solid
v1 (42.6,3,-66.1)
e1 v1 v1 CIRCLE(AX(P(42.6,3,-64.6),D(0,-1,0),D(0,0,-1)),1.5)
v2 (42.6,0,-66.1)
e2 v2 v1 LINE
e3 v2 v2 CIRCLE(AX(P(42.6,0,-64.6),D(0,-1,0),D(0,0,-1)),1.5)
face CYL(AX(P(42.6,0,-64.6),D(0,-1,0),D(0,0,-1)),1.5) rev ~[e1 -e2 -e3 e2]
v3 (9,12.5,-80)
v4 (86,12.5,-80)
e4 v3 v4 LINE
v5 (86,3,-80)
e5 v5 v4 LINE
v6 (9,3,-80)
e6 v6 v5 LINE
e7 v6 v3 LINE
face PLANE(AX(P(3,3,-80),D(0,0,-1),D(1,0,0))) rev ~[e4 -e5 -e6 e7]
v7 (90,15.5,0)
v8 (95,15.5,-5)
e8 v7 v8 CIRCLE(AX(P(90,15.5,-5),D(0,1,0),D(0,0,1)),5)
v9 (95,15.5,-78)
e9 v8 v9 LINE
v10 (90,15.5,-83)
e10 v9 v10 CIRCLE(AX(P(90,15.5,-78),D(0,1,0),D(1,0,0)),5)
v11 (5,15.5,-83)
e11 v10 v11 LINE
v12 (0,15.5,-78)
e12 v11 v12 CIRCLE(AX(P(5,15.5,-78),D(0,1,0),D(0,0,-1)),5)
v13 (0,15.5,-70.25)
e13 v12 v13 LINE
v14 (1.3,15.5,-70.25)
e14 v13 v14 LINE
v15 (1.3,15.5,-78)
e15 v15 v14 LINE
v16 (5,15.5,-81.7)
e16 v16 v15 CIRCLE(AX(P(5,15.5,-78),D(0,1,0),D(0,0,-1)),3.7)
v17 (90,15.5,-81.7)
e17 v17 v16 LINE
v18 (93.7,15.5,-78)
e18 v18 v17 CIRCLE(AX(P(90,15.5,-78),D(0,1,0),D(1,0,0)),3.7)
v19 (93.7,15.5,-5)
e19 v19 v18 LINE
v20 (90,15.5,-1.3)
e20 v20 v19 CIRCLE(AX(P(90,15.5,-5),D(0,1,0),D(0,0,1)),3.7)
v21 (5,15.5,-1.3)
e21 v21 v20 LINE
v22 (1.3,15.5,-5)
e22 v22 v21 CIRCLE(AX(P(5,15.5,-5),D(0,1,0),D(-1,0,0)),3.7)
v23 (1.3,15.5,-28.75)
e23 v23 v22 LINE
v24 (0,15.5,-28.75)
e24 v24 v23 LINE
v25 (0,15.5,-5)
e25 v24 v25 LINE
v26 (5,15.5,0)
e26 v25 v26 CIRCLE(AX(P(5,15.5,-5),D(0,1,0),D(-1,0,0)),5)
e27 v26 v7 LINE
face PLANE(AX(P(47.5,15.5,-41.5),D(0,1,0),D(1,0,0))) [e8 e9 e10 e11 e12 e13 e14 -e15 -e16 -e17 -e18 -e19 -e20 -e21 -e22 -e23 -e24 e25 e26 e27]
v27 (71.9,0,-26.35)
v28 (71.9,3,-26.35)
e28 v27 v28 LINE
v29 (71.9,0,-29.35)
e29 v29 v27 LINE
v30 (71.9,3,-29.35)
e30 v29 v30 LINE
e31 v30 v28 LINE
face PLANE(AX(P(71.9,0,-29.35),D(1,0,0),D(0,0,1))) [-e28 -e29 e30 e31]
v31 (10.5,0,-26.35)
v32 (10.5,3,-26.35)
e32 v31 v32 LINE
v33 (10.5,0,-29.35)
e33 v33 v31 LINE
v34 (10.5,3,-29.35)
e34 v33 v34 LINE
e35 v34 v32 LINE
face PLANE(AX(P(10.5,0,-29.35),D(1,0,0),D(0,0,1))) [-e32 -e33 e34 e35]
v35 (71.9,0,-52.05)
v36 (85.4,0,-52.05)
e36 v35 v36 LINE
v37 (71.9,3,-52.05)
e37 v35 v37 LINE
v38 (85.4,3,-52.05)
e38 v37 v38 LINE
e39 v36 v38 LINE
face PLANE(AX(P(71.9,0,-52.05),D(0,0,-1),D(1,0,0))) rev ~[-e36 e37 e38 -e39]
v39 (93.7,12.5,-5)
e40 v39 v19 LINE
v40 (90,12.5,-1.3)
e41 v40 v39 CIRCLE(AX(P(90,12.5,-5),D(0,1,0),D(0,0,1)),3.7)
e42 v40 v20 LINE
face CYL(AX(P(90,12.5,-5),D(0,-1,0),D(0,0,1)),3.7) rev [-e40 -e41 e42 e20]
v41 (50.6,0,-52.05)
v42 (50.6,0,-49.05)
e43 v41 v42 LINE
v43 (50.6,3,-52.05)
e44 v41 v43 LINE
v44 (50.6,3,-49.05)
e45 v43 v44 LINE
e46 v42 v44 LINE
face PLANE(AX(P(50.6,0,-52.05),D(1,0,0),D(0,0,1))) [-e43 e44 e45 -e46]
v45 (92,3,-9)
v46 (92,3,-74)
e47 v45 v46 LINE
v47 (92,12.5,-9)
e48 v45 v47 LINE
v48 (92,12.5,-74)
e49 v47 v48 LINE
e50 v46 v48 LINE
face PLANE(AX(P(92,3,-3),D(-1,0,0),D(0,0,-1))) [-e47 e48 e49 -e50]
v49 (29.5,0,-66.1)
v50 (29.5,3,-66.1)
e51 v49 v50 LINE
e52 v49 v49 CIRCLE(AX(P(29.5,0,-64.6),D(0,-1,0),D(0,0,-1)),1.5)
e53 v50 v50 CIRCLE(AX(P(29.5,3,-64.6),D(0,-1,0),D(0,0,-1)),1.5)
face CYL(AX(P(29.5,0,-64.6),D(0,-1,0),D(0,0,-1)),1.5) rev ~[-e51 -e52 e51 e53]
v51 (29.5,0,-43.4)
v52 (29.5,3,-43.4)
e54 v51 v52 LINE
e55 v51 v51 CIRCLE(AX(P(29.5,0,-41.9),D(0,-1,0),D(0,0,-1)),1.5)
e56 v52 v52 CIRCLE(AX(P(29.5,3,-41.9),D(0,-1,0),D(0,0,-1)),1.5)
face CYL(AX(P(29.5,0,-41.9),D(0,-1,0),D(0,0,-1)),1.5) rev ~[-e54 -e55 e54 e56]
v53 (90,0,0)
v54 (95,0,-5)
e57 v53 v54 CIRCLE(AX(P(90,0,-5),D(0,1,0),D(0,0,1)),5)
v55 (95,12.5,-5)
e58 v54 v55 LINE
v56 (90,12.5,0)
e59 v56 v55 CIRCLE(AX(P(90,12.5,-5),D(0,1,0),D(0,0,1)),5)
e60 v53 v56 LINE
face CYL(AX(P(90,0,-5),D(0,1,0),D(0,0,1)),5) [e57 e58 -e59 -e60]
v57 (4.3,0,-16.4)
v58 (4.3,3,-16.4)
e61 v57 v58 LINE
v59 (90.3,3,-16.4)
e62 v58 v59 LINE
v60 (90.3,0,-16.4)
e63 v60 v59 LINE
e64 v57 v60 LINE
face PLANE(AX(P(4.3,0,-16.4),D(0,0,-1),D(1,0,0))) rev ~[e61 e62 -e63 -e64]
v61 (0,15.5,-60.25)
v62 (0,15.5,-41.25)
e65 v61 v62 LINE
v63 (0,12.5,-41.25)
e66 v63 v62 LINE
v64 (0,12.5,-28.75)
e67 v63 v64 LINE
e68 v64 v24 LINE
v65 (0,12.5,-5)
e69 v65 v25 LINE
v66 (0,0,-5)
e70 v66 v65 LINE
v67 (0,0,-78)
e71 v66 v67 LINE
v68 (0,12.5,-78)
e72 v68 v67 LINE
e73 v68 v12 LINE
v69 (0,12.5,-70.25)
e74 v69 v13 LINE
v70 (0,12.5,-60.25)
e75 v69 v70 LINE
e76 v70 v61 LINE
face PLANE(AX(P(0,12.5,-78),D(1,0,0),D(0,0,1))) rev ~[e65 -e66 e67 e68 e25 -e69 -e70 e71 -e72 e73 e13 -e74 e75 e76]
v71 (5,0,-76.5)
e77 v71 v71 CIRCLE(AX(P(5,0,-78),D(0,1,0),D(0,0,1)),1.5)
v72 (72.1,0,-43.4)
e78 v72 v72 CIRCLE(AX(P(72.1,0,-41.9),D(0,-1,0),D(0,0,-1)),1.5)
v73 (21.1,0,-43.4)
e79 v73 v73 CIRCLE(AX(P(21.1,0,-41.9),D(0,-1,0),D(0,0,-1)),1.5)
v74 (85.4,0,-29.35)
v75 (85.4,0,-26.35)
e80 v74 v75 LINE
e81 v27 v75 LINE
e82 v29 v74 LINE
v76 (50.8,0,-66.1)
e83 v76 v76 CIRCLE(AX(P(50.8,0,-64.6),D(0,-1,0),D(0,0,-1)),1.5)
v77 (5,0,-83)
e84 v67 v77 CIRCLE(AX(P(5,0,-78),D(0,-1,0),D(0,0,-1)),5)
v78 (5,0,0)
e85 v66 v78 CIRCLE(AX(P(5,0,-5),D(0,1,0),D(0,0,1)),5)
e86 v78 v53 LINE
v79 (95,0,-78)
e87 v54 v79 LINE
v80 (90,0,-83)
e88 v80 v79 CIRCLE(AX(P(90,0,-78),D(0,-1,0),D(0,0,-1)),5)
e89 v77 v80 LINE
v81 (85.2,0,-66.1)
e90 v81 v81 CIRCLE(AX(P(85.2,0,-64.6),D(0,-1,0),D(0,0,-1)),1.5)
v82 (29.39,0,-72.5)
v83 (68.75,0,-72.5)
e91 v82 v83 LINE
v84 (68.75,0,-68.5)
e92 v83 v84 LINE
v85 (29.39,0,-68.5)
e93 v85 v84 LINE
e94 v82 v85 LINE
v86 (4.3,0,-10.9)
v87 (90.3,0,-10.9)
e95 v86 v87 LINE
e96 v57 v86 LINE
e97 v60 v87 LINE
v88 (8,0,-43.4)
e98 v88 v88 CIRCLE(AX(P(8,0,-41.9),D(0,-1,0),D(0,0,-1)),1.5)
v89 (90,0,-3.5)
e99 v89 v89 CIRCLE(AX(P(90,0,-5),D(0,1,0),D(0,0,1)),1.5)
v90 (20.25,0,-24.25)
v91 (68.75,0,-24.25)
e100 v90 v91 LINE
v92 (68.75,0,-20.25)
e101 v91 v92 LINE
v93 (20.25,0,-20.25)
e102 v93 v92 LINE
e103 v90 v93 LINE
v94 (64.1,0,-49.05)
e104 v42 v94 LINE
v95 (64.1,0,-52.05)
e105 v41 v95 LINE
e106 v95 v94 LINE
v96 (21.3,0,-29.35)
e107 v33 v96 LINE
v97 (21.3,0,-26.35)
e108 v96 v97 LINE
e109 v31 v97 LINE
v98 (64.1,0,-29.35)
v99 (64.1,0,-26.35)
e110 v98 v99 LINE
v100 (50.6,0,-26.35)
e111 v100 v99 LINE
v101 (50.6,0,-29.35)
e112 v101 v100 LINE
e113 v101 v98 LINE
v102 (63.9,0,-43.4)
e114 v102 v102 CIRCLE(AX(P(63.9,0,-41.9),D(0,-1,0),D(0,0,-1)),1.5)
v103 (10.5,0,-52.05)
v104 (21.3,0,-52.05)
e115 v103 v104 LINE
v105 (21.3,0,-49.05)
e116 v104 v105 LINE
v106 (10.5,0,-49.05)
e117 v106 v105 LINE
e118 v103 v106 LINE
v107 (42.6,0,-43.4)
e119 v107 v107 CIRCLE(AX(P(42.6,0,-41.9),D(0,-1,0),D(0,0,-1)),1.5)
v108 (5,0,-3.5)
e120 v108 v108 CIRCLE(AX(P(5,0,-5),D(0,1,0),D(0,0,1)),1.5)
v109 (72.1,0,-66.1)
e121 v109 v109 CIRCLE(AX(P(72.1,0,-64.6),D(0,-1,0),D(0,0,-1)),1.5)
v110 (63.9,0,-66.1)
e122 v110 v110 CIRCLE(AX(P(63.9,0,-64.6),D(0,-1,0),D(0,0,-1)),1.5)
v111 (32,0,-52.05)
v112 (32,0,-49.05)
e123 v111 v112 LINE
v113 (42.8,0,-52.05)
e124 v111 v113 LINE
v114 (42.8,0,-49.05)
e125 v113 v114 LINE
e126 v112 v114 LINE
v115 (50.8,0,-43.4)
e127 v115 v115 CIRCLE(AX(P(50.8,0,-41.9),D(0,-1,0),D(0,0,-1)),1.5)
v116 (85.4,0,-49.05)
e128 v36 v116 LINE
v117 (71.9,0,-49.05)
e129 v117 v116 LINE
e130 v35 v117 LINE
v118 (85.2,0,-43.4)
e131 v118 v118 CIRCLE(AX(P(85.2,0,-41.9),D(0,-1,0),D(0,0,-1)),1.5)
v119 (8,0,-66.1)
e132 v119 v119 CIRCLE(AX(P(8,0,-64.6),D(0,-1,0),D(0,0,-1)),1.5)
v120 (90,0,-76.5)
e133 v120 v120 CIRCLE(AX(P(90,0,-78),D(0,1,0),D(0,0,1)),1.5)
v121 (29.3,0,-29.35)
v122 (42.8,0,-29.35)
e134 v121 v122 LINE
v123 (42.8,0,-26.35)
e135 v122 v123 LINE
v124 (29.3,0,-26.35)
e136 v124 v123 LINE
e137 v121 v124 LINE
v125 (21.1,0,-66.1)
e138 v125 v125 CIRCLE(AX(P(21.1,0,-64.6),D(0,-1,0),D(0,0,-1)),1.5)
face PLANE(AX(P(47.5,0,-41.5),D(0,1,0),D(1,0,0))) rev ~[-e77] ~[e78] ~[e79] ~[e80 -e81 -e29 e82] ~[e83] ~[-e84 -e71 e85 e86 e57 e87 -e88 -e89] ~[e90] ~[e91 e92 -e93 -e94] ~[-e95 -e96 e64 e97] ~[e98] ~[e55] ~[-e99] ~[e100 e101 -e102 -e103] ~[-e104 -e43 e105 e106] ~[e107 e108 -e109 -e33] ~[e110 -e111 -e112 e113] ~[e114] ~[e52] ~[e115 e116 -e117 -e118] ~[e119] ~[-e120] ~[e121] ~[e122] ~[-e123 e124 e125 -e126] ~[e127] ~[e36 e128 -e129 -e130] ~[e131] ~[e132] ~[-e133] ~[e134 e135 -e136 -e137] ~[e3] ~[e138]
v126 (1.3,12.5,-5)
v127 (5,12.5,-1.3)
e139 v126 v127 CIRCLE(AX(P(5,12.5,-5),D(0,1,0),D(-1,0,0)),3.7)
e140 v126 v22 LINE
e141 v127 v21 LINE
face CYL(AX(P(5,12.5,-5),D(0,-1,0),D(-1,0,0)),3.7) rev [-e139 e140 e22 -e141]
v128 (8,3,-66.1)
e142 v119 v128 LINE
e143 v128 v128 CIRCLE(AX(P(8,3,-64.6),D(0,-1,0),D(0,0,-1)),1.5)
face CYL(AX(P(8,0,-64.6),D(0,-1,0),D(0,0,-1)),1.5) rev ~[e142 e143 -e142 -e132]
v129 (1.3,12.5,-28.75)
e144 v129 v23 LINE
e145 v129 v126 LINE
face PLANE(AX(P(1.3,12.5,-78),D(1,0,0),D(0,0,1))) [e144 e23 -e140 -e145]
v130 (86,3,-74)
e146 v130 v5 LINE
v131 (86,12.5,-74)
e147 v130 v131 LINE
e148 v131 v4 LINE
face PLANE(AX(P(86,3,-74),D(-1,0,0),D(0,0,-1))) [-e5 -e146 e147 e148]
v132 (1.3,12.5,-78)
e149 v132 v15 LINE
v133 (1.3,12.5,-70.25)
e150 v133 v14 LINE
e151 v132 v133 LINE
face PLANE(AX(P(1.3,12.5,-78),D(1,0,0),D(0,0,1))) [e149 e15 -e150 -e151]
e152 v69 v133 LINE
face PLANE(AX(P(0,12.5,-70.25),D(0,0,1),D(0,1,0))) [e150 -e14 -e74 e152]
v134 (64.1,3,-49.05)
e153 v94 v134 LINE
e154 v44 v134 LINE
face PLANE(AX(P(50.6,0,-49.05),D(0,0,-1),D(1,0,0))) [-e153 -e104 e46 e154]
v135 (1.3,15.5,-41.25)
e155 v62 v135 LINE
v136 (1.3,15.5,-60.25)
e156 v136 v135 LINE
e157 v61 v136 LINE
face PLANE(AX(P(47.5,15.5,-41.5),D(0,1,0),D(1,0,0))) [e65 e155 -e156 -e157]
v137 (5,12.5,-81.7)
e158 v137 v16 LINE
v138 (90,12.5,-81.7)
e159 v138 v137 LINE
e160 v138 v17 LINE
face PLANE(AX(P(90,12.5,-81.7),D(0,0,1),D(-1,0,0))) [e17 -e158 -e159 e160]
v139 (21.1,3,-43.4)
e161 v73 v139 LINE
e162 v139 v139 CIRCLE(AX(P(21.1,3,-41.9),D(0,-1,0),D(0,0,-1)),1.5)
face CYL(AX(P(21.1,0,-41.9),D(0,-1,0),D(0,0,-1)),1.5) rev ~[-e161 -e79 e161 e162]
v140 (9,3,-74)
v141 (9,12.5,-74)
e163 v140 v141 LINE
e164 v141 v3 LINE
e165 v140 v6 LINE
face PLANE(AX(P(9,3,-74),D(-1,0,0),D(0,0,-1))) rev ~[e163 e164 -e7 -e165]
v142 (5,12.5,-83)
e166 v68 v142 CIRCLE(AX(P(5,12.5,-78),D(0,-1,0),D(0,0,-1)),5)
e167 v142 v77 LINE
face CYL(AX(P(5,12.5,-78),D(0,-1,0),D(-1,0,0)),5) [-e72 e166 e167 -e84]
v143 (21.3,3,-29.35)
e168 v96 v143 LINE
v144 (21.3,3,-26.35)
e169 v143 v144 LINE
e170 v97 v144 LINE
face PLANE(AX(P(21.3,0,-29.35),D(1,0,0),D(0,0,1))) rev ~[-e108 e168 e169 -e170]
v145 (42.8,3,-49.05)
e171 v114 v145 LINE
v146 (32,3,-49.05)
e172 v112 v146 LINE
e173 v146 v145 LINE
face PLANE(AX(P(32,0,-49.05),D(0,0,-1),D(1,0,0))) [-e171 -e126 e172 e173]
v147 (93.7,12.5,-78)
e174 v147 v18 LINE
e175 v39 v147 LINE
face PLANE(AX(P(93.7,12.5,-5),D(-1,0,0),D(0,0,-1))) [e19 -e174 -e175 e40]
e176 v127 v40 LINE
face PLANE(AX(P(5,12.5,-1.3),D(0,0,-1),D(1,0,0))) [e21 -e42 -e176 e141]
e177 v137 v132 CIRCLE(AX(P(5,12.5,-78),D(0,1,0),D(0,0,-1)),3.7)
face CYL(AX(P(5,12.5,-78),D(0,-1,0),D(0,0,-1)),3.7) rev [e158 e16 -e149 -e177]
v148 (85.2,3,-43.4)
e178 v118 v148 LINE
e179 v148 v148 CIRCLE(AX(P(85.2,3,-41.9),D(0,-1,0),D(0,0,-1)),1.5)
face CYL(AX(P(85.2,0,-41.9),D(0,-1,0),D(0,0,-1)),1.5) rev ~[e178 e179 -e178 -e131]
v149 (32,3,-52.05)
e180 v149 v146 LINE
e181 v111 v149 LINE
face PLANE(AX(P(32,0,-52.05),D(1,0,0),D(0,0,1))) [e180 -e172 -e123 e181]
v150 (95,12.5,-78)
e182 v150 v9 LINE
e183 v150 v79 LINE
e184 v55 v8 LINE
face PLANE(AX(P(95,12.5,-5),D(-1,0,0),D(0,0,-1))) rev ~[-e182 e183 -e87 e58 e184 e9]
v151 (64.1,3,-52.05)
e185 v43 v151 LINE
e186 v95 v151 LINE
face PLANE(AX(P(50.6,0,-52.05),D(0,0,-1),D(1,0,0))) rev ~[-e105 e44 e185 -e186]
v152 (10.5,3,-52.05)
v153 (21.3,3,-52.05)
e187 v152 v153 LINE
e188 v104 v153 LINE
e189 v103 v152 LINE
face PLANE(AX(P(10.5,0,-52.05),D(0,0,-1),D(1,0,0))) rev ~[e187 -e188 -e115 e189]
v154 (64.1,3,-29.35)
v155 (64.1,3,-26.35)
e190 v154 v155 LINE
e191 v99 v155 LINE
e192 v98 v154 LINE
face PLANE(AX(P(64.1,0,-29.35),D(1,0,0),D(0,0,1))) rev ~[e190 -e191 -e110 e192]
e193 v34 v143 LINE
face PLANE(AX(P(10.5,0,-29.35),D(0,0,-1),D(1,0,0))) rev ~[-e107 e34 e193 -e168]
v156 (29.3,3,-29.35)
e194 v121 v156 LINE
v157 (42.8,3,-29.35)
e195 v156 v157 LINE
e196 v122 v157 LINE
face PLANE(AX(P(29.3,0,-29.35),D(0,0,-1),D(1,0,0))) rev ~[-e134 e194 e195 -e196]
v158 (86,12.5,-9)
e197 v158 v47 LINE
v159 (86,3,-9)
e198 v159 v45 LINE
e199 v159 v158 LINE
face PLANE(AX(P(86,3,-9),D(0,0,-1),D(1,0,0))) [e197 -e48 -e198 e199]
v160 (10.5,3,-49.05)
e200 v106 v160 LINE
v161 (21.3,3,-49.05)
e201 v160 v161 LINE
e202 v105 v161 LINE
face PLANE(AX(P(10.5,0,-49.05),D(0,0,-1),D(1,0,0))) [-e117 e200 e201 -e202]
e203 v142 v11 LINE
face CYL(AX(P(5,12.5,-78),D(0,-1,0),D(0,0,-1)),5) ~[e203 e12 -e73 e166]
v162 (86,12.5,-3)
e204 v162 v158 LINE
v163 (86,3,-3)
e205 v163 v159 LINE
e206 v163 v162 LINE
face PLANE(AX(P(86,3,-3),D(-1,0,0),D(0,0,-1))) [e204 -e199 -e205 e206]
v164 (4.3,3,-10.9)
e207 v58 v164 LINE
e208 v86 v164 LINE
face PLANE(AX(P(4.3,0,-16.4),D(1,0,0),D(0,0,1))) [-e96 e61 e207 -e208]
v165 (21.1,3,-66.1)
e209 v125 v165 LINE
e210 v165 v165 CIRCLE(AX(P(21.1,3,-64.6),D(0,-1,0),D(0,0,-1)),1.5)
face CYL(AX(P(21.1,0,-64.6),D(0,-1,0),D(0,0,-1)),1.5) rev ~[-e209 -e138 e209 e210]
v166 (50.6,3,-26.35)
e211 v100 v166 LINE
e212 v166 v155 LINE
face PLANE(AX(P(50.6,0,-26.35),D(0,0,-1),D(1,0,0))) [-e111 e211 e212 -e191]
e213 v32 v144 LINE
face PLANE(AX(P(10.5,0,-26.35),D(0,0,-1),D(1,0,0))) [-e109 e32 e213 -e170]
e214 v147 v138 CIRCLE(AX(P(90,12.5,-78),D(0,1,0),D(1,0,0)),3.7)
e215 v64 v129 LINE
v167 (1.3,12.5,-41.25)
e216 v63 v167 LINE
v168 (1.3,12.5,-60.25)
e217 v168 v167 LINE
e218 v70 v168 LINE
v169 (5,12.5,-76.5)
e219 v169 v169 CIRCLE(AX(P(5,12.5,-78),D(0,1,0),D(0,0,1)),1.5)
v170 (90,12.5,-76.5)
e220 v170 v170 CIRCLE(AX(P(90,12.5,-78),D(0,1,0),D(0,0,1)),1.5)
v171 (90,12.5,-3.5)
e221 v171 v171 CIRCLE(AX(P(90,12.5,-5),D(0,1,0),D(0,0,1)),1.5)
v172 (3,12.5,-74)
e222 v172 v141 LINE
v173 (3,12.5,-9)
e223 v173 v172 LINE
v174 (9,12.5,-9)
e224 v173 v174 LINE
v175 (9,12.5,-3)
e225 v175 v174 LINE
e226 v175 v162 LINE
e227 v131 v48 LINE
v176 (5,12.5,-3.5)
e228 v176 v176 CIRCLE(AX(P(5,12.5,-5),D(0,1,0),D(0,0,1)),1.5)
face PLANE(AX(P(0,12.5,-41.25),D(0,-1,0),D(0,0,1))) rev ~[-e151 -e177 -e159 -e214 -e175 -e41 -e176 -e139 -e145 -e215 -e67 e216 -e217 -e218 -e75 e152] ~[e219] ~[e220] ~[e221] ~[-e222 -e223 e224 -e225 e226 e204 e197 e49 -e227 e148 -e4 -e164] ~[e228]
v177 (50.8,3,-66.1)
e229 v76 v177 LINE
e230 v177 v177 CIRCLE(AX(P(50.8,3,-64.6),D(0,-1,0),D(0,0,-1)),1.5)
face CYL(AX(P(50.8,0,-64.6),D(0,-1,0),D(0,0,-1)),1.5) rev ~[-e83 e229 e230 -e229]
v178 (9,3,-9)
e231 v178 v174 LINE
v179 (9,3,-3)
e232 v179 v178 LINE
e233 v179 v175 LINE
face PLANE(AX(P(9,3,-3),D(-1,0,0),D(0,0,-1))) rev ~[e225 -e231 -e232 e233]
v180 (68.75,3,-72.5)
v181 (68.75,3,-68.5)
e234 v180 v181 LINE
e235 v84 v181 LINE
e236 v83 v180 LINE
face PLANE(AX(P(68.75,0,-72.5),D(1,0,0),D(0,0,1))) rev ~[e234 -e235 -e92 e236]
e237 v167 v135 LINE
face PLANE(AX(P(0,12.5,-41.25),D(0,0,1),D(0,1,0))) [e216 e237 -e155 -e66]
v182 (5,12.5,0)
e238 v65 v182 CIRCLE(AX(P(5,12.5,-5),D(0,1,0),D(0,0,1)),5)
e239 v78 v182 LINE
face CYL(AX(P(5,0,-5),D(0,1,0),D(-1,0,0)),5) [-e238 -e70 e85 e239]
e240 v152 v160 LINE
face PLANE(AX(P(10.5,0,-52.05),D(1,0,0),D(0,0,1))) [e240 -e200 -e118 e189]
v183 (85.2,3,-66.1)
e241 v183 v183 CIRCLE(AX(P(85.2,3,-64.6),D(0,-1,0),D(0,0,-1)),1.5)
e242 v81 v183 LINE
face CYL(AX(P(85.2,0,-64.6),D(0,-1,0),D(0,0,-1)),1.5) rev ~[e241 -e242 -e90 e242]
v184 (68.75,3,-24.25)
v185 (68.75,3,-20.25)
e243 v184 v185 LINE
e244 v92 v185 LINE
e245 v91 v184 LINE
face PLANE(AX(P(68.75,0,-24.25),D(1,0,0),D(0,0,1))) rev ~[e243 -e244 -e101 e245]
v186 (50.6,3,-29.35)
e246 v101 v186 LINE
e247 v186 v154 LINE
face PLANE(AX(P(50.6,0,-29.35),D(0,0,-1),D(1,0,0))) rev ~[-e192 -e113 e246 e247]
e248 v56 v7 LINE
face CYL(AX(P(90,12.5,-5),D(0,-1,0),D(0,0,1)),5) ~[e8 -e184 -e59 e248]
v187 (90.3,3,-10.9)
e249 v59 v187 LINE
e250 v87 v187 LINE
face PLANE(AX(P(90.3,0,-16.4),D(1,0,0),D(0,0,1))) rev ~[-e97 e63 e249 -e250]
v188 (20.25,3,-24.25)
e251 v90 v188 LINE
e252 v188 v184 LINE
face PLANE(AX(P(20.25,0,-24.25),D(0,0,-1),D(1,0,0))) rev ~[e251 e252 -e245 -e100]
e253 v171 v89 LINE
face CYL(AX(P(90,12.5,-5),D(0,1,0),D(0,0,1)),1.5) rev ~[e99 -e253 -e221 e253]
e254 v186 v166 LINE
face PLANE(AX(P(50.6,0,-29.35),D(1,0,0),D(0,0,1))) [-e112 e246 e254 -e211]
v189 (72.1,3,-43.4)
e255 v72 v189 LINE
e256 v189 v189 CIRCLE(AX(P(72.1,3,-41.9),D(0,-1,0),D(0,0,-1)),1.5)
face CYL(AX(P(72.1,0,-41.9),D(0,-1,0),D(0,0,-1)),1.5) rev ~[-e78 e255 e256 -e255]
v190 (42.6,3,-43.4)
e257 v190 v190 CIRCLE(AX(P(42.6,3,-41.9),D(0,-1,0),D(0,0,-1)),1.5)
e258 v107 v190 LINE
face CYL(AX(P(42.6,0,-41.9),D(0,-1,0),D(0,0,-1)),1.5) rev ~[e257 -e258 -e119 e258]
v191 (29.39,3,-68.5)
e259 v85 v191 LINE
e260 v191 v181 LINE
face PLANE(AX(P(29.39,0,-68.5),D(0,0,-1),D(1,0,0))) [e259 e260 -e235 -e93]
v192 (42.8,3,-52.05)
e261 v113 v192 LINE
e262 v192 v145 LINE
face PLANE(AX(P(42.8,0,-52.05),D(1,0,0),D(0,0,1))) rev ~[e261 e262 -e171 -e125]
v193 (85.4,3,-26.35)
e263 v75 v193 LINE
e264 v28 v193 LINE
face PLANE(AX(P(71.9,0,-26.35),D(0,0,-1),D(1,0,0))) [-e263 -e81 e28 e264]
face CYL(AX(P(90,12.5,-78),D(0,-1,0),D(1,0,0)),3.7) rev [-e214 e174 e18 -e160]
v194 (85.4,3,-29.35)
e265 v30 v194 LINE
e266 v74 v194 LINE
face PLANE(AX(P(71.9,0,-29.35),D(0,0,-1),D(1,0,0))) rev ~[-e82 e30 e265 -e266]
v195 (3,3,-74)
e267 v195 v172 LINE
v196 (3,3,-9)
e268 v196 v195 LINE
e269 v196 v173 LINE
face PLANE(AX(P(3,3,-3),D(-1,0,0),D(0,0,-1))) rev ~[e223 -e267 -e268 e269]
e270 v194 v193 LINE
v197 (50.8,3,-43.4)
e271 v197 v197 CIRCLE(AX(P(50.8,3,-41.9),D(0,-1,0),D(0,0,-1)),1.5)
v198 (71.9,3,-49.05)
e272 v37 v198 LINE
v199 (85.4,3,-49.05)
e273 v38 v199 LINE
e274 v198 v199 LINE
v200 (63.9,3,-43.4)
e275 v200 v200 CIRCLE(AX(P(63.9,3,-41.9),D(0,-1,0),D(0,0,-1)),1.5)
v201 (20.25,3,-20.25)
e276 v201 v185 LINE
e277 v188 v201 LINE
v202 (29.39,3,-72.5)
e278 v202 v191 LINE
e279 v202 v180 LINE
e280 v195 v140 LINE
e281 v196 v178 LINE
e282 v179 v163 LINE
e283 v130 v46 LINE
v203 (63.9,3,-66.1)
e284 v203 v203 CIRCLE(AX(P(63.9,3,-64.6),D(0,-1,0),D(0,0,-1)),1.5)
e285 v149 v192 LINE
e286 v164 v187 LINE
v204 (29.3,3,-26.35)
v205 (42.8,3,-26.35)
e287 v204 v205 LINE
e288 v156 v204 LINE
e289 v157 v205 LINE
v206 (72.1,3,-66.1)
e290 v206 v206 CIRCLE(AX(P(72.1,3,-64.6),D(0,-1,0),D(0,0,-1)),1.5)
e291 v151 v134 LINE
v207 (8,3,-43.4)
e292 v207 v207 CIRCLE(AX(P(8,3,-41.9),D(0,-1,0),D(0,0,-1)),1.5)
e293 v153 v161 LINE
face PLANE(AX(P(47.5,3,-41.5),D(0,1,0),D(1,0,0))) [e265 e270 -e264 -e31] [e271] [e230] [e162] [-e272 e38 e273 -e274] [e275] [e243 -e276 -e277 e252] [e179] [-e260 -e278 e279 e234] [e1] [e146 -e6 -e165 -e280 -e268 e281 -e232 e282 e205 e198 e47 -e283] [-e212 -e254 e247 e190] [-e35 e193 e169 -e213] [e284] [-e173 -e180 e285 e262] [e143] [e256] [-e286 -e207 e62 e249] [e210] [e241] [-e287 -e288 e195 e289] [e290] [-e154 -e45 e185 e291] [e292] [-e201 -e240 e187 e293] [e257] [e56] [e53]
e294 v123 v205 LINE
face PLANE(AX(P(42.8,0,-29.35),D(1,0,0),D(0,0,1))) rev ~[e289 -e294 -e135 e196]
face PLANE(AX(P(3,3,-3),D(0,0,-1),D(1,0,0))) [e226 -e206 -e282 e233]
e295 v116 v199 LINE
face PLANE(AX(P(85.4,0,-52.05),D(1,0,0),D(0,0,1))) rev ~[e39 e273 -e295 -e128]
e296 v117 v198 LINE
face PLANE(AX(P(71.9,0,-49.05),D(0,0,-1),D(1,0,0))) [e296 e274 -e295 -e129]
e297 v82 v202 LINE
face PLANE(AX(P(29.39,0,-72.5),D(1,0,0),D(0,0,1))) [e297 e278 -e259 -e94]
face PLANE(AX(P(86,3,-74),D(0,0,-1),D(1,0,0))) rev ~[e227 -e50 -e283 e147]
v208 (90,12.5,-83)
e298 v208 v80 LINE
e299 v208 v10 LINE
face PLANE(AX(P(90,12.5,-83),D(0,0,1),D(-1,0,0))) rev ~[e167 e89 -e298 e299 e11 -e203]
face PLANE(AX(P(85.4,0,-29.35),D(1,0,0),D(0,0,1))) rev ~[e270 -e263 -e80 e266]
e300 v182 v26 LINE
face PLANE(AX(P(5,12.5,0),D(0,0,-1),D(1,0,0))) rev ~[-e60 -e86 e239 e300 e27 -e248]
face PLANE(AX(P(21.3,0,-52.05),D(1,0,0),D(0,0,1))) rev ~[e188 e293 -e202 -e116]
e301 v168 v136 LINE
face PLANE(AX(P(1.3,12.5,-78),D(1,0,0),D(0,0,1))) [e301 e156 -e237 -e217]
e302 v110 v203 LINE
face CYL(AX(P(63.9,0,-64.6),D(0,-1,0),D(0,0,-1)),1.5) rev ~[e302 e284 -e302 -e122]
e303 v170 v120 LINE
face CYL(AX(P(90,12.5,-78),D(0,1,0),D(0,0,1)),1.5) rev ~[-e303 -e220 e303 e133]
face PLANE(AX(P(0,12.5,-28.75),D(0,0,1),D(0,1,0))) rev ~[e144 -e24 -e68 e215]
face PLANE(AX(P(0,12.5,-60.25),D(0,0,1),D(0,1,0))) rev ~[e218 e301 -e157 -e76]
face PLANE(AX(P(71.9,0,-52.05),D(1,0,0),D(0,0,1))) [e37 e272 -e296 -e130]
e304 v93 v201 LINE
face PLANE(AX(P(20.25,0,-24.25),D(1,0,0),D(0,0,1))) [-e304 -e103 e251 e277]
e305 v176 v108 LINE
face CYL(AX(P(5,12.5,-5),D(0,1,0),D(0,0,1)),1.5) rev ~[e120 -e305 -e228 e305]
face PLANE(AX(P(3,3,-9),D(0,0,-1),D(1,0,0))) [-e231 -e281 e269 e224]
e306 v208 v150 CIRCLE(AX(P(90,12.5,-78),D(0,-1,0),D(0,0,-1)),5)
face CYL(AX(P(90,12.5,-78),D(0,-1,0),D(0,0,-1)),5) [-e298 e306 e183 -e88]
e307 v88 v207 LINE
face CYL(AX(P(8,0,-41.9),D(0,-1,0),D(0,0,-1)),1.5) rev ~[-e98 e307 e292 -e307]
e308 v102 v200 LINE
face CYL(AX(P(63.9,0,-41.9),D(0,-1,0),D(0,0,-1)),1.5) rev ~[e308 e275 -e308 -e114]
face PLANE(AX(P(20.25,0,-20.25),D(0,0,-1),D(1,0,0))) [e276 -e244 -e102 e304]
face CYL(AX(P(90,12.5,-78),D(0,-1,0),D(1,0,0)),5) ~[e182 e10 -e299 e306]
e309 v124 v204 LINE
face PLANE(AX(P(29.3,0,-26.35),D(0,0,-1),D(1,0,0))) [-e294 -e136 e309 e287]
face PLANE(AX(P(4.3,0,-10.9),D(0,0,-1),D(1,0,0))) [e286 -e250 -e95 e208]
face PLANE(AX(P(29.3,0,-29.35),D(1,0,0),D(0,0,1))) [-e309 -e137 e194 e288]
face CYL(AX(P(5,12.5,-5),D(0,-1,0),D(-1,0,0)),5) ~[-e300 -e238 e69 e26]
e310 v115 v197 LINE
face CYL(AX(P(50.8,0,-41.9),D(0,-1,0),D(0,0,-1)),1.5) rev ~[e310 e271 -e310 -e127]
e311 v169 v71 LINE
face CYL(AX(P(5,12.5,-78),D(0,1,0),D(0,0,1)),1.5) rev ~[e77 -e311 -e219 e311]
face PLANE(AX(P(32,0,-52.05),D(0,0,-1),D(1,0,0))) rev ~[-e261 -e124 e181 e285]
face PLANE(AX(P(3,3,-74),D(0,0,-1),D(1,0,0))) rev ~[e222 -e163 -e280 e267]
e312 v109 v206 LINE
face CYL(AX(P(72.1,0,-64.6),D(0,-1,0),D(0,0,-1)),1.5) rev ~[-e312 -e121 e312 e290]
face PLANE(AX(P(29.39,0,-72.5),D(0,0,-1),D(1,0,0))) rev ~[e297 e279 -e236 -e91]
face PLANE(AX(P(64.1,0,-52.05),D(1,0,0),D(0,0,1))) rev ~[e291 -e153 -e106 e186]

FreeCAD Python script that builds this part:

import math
import FreeCAD as App
import Part
import Sketcher

V = App.Vector
Q = App.Units.Quantity


def edges_at(feature, points):
    """Names of the edges that pass closest to the given points."""
    edges = feature.Shape.Edges
    near = lambda p: min(range(len(edges)), key=lambda i: edges[i].distToShape(Part.Vertex(*p))[0])
    return sorted({f"Edge{near(p) + 1}" for p in points})


def add_polygon(sketch, points):
    """Adds a closed chain of lines whose ends are joined by coincident constraints."""
    first, n = sketch.GeometryCount, len(points)
    for a, b in zip(points, points[1:] + points[:1]):
        sketch.addGeometry(Part.LineSegment(App.Vector(*a, 0), App.Vector(*b, 0)), False)
    for i in range(n):
        sketch.addConstraint(Sketcher.Constraint("Coincident", first + i, 2, first + (i + 1) % n, 1))

doc = App.newDocument("Part")
body = doc.addObject("PartDesign::Body", "Body")

# Sketch on XZ plane
sketch1 = body.newObject("Sketcher::SketchObject", "Sketch")
sketch1.AttachmentSupport = (doc.getObject("XZ_Plane"), [""])
sketch1.MapMode = "FlatFace"
add_polygon(sketch1, [(0, -83), (0, 0), (95, 0), (95, -83)])  # lines 0-3
sketch1.addConstraint(Sketcher.Constraint("Vertical", 0))
sketch1.addConstraint(Sketcher.Constraint("Horizontal", 1))
sketch1.addConstraint(Sketcher.Constraint("Vertical", 2))
sketch1.addConstraint(Sketcher.Constraint("Horizontal", 3))
sketch1.addConstraint(Sketcher.Constraint("Coincident", 0, 2, -1, 1))
sketch1.addConstraint(Sketcher.Constraint("DistanceX", 1, 1, 1, 2, Q("95 mm")))
sketch1.addConstraint(Sketcher.Constraint("DistanceY", 0, 1, 0, 2, Q("83 mm")))
pad1 = body.newObject("PartDesign::Pad", "Pad")
pad1.Profile = sketch1
pad1.Length = 3
pad1.Reversed = True

# Sketch on XZ plane
sketch2 = body.newObject("Sketcher::SketchObject", "Sketch001")
sketch2.AttachmentSupport = (doc.getObject("XZ_Plane"), [""])
sketch2.MapMode = "FlatFace"
sketch2.AttachmentOffset = App.Placement(V(0, 0, -3), App.Rotation())
add_polygon(sketch2, [(0, -83), (0, 0), (95, 0), (95, -83)])  # lines 0-3
add_polygon(sketch2, [(92, -3), (3, -3), (3, -80), (92, -80)])  # lines 4-7
sketch2.addConstraint(Sketcher.Constraint("Vertical", 0))
sketch2.addConstraint(Sketcher.Constraint("Horizontal", 1))
sketch2.addConstraint(Sketcher.Constraint("Vertical", 2))
sketch2.addConstraint(Sketcher.Constraint("Horizontal", 3))
sketch2.addConstraint(Sketcher.Constraint("Horizontal", 4))
sketch2.addConstraint(Sketcher.Constraint("Vertical", 5))
sketch2.addConstraint(Sketcher.Constraint("Horizontal", 6))
sketch2.addConstraint(Sketcher.Constraint("Vertical", 7))
sketch2.addConstraint(Sketcher.Constraint("Coincident", 0, 2, -1, 1))
sketch2.addConstraint(Sketcher.Constraint("DistanceX", 1, 1, 1, 2, Q("95 mm")))
sketch2.addConstraint(Sketcher.Constraint("DistanceX", 4, 2, 4, 1, Q("89 mm")))
sketch2.addConstraint(Sketcher.Constraint("DistanceY", 0, 1, 0, 2, Q("83 mm")))
sketch2.addConstraint(Sketcher.Constraint("DistanceY", 5, 2, 5, 1, Q("77 mm")))
sketch2.addConstraint(Sketcher.Constraint("DistanceX", -1, 1, 4, 2, Q("3 mm")))
sketch2.addConstraint(Sketcher.Constraint("DistanceY", 4, 2, -1, 1, Q("3 mm")))
pad2 = body.newObject("PartDesign::Pad", "Pad001")
pad2.Profile = sketch2
pad2.Length = 9.5
pad2.Reversed = True

# Sketch on XZ plane
sketch3 = body.newObject("Sketcher::SketchObject", "Sketch002")
sketch3.AttachmentSupport = (doc.getObject("XZ_Plane"), [""])
sketch3.MapMode = "FlatFace"
sketch3.AttachmentOffset = App.Placement(V(0, 0, -3), App.Rotation())
add_polygon(sketch3, [(3, -80), (3, -74), (9, -74), (9, -80)])  # lines 0-3
add_polygon(sketch3, [(3, -9), (3, -3), (9, -3), (9, -9)])  # lines 4-7
add_polygon(sketch3, [(86, -9), (86, -3), (92, -3), (92, -9)])  # lines 8-11
add_polygon(sketch3, [(86, -80), (86, -74), (92, -74), (92, -80)])  # lines 12-15
sketch3.addConstraint(Sketcher.Constraint("Vertical", 0))
sketch3.addConstraint(Sketcher.Constraint("Horizontal", 1))
sketch3.addConstraint(Sketcher.Constraint("Vertical", 2))
sketch3.addConstraint(Sketcher.Constraint("Horizontal", 3))
sketch3.addConstraint(Sketcher.Constraint("Vertical", 4))
sketch3.addConstraint(Sketcher.Constraint("Horizontal", 5))
sketch3.addConstraint(Sketcher.Constraint("Vertical", 6))
sketch3.addConstraint(Sketcher.Constraint("Horizontal", 7))
sketch3.addConstraint(Sketcher.Constraint("Vertical", 8))
sketch3.addConstraint(Sketcher.Constraint("Horizontal", 9))
sketch3.addConstraint(Sketcher.Constraint("Vertical", 10))
sketch3.addConstraint(Sketcher.Constraint("Horizontal", 11))
sketch3.addConstraint(Sketcher.Constraint("Vertical", 12))
sketch3.addConstraint(Sketcher.Constraint("Horizontal", 13))
sketch3.addConstraint(Sketcher.Constraint("Vertical", 14))
sketch3.addConstraint(Sketcher.Constraint("Horizontal", 15))
sketch3.addConstraint(Sketcher.Constraint("Horizontal", 5, 2, 8, 2))
sketch3.addConstraint(Sketcher.Constraint("Horizontal", 7, 2, 10, 2))
sketch3.addConstraint(Sketcher.Constraint("Horizontal", 1, 2, 12, 2))
sketch3.addConstraint(Sketcher.Constraint("Horizontal", 3, 2, 14, 2))
sketch3.addConstraint(Sketcher.Constraint("Vertical", 3, 2, 4, 2))
sketch3.addConstraint(Sketcher.Constraint("Vertical", 2, 2, 5, 2))
sketch3.addConstraint(Sketcher.Constraint("Vertical", 11, 2, 12, 2))
sketch3.addConstraint(Sketcher.Constraint("Vertical", 10, 2, 13, 2))
sketch3.addConstraint(Sketcher.Constraint("Equal", 7, 9))
sketch3.addConstraint(Sketcher.Constraint("Equal", 15, 0))
sketch3.addConstraint(Sketcher.Constraint("Equal", 2, 4))
sketch3.addConstraint(Sketcher.Constraint("DistanceX", 1, 1, 1, 2, Q("6 mm")))
sketch3.addConstraint(Sketcher.Constraint("DistanceX", -1, 1, 0, 2, Q("3 mm")))
sketch3.addConstraint(Sketcher.Constraint("DistanceY", 0, 2, -1, 1, Q("74 mm")))
sketch3.addConstraint(Sketcher.Constraint("DistanceY", 4, 2, -1, 1, Q("3 mm")))
sketch3.addConstraint(Sketcher.Constraint("DistanceX", -1, 1, 8, 2, Q("86 mm")))
pad3 = body.newObject("PartDesign::Pad", "Pad002")
pad3.Profile = sketch3
pad3.Length = 9.5
pad3.Reversed = True
doc.recompute()

fillet = body.newObject("PartDesign::Fillet", "Fillet")
fillet.Base = (pad3, edges_at(pad3, [
    (0, 6.25, -83),
    (95, 6.25, -83),
    (95, 6.25, 0),
    (0, 6.25, 0),
]))
fillet.Radius = 5

# Sketch on XZ plane
sketch4 = body.newObject("Sketcher::SketchObject", "Sketch003")
sketch4.AttachmentSupport = (doc.getObject("XZ_Plane"), [""])
sketch4.MapMode = "FlatFace"
sketch4.AttachmentOffset = App.Placement(V(0, 0, -12.5), App.Rotation())
sketch4.addGeometry(Part.Circle(V(5, -78, 0), V(0, 0, 1), 1.5), False)
sketch4.addGeometry(Part.Circle(V(90, -78, 0), V(0, 0, 1), 1.5), False)
sketch4.addGeometry(Part.Circle(V(90, -5, 0), V(0, 0, 1), 1.5), False)
sketch4.addGeometry(Part.Circle(V(5, -5, 0), V(0, 0, 1), 1.5), False)
sketch4.addConstraint(Sketcher.Constraint("Equal", 0, 1))
sketch4.addConstraint(Sketcher.Constraint("Equal", 1, 2))
sketch4.addConstraint(Sketcher.Constraint("Equal", 2, 3))
sketch4.addConstraint(Sketcher.Constraint("Horizontal", 0, 3, 1, 3))
sketch4.addConstraint(Sketcher.Constraint("Horizontal", 2, 3, 3, 3))
sketch4.addConstraint(Sketcher.Constraint("Vertical", 1, 3, 2, 3))
sketch4.addConstraint(Sketcher.Constraint("Vertical", 0, 3, 3, 3))
sketch4.addConstraint(Sketcher.Constraint("Diameter", 0, Q("3 mm")))
sketch4.addConstraint(Sketcher.Constraint("DistanceX", -1, 1, 0, 3, Q("5 mm")))
sketch4.addConstraint(Sketcher.Constraint("DistanceY", 0, 3, -1, 1, Q("78 mm")))
sketch4.addConstraint(Sketcher.Constraint("DistanceX", -1, 1, 1, 3, Q("90 mm")))
sketch4.addConstraint(Sketcher.Constraint("DistanceY", 2, 3, -1, 1, Q("5 mm")))
pocket1 = body.newObject("PartDesign::Pocket", "Pocket")
pocket1.Profile = sketch4
pocket1.Length = 12.5
pocket1.Reversed = True

# Sketch on XZ plane
sketch5 = body.newObject("Sketcher::SketchObject", "Sketch004")
sketch5.AttachmentSupport = (doc.getObject("XZ_Plane"), [""])
sketch5.MapMode = "FlatFace"
sketch5.AttachmentOffset = App.Placement(V(0, 0, -12.5), App.Rotation())
sketch5.addGeometry(Part.LineSegment(V(5, 0, 0), V(90, 0, 0)), False)
sketch5.addGeometry(Part.ArcOfCircle(Part.Circle(V(90, -5, 0), V(0, 0, 1), 5), math.radians(0), math.radians(90)), False)
sketch5.addGeometry(Part.LineSegment(V(95, -5, 0), V(95, -78, 0)), False)
sketch5.addGeometry(Part.ArcOfCircle(Part.Circle(V(90, -78, 0), V(0, 0, 1), 5), math.radians(-90), math.radians(0)), False)
sketch5.addGeometry(Part.LineSegment(V(90, -83, 0), V(5, -83, 0)), False)
sketch5.addGeometry(Part.ArcOfCircle(Part.Circle(V(5, -78, 0), V(0, 0, 1), 5), math.radians(180), math.radians(270)), False)
sketch5.addGeometry(Part.LineSegment(V(0, -78, 0), V(0, -5, 0)), False)
sketch5.addGeometry(Part.ArcOfCircle(Part.Circle(V(5, -5, 0), V(0, 0, 1), 5), math.radians(90), math.radians(180)), False)
sketch5.addGeometry(Part.LineSegment(V(90, -1.3, 0), V(5, -1.3, 0)), False)
sketch5.addGeometry(Part.ArcOfCircle(Part.Circle(V(5, -5, 0), V(0, 0, 1), 3.7), math.radians(90), math.radians(180)), False)
sketch5.addGeometry(Part.LineSegment(V(1.3, -5, 0), V(1.3, -78, 0)), False)
sketch5.addGeometry(Part.ArcOfCircle(Part.Circle(V(5, -78, 0), V(0, 0, 1), 3.7), math.radians(-180), math.radians(-90)), False)
sketch5.addGeometry(Part.LineSegment(V(5, -81.7, 0), V(90, -81.7, 0)), False)
sketch5.addGeometry(Part.ArcOfCircle(Part.Circle(V(90, -78, 0), V(0, 0, 1), 3.7), math.radians(-90), math.radians(0)), False)
sketch5.addGeometry(Part.LineSegment(V(93.7, -78, 0), V(93.7, -5, 0)), False)
sketch5.addGeometry(Part.ArcOfCircle(Part.Circle(V(90, -5, 0), V(0, 0, 1), 3.7), math.radians(0), math.radians(90)), False)
sketch5.addConstraint(Sketcher.Constraint("Tangent", 0, 2, 1, 2))
sketch5.addConstraint(Sketcher.Constraint("Tangent", 1, 1, 2, 1))
sketch5.addConstraint(Sketcher.Constraint("Tangent", 2, 2, 3, 2))
sketch5.addConstraint(Sketcher.Constraint("Tangent", 3, 1, 4, 1))
sketch5.addConstraint(Sketcher.Constraint("Tangent", 4, 2, 5, 2))
sketch5.addConstraint(Sketcher.Constraint("Tangent", 5, 1, 6, 1))
sketch5.addConstraint(Sketcher.Constraint("Tangent", 6, 2, 7, 2))
sketch5.addConstraint(Sketcher.Constraint("Tangent", 7, 1, 0, 1))
sketch5.addConstraint(Sketcher.Constraint("Tangent", 8, 2, 9, 1))
sketch5.addConstraint(Sketcher.Constraint("Tangent", 9, 2, 10, 1))
sketch5.addConstraint(Sketcher.Constraint("Tangent", 10, 2, 11, 1))
sketch5.addConstraint(Sketcher.Constraint("Tangent", 11, 2, 12, 1))
sketch5.addConstraint(Sketcher.Constraint("Tangent", 12, 2, 13, 1))
sketch5.addConstraint(Sketcher.Constraint("Tangent", 13, 2, 14, 1))
sketch5.addConstraint(Sketcher.Constraint("Tangent", 14, 2, 15, 1))
sketch5.addConstraint(Sketcher.Constraint("Tangent", 15, 2, 8, 1))
sketch5.addConstraint(Sketcher.Constraint("Horizontal", 0))
sketch5.addConstraint(Sketcher.Constraint("Vertical", 2))
sketch5.addConstraint(Sketcher.Constraint("Horizontal", 4))
sketch5.addConstraint(Sketcher.Constraint("Vertical", 6))
sketch5.addConstraint(Sketcher.Constraint("Horizontal", 8))
sketch5.addConstraint(Sketcher.Constraint("Vertical", 10))
sketch5.addConstraint(Sketcher.Constraint("Horizontal", 12))
sketch5.addConstraint(Sketcher.Constraint("Vertical", 14))
sketch5.addConstraint(Sketcher.Constraint("Coincident", 9, 3, 7, 3))
sketch5.addConstraint(Sketcher.Constraint("Coincident", 11, 3, 5, 3))
sketch5.addConstraint(Sketcher.Constraint("Coincident", 13, 3, 3, 3))
sketch5.addConstraint(Sketcher.Constraint("Equal", 1, 3))
sketch5.addConstraint(Sketcher.Constraint("Equal", 3, 5))
sketch5.addConstraint(Sketcher.Constraint("Equal", 5, 7))
sketch5.addConstraint(Sketcher.Constraint("Equal", 13, 15))
sketch5.addConstraint(Sketcher.Constraint("PointOnObject", 0, 2, -1))
sketch5.addConstraint(Sketcher.Constraint("PointOnObject", 5, 1, -2))
sketch5.addConstraint(Sketcher.Constraint("Radius", 1, Q("5 mm")))
sketch5.addConstraint(Sketcher.Constraint("Radius", 9, Q("3.7 mm")))
sketch5.addConstraint(Sketcher.Constraint("DistanceX", 0, 1, 0, 2, Q("85 mm")))
sketch5.addConstraint(Sketcher.Constraint("DistanceY", 2, 2, 2, 1, Q("73 mm")))
pad4 = body.newObject("PartDesign::Pad", "Pad003")
pad4.Profile = sketch5
pad4.Length = 3
pad4.Reversed = True

# Sketch on YZ plane
sketch6 = body.newObject("Sketcher::SketchObject", "Sketch005")
sketch6.AttachmentSupport = (doc.getObject("YZ_Plane"), [""])
sketch6.MapMode = "FlatFace"
add_polygon(sketch6, [(15.5, -41.2), (12.5, -41.2), (12.5, -28.8), (15.5, -28.8)])  # lines 0-3
add_polygon(sketch6, [(15.5, -70.2), (12.5, -70.2), (12.5, -60.2), (15.5, -60.2)])  # lines 4-7
sketch6.addConstraint(Sketcher.Constraint("Horizontal", 0))
sketch6.addConstraint(Sketcher.Constraint("Vertical", 1))
sketch6.addConstraint(Sketcher.Constraint("Horizontal", 2))
sketch6.addConstraint(Sketcher.Constraint("Vertical", 3))
sketch6.addConstraint(Sketcher.Constraint("Horizontal", 4))
sketch6.addConstraint(Sketcher.Constraint("Vertical", 5))
sketch6.addConstraint(Sketcher.Constraint("Horizontal", 6))
sketch6.addConstraint(Sketcher.Constraint("Vertical", 7))
sketch6.addConstraint(Sketcher.Constraint("Vertical", 1, 2, 4, 2))
sketch6.addConstraint(Sketcher.Constraint("Vertical", 3, 2, 6, 2))
sketch6.addConstraint(Sketcher.Constraint("DistanceX", 0, 2, 0, 1, Q("3 mm")))
sketch6.addConstraint(Sketcher.Constraint("DistanceY", 5, 1, 5, 2, Q("10 mm")))
sketch6.addConstraint(Sketcher.Constraint("DistanceY", 1, 1, 1, 2, Q("12.5 mm")))
sketch6.addConstraint(Sketcher.Constraint("DistanceY", 4, 2, 0, 2, Q("29 mm")))
sketch6.addConstraint(Sketcher.Constraint("DistanceX", -1, 1, 0, 2, Q("12.5 mm")))
sketch6.addConstraint(Sketcher.Constraint("DistanceY", 0, 2, -1, 1, Q("41.25 mm")))
pocket2 = body.newObject("PartDesign::Pocket", "Pocket001")
pocket2.Profile = sketch6
pocket2.Length = 1.3
pocket2.Reversed = True

# Sketch on XZ plane
sketch7 = body.newObject("Sketcher::SketchObject", "Sketch006")
sketch7.AttachmentSupport = (doc.getObject("XZ_Plane"), [""])
sketch7.MapMode = "FlatFace"
add_polygon(sketch7, [(4.3, -10.9), (4.3, -16.4), (90.3, -16.4), (90.3, -10.9)])  # lines 0-3
add_polygon(sketch7, [(20.2, -20.2), (20.2, -24.2), (68.8, -24.2), (68.8, -20.2)])  # lines 4-7
add_polygon(sketch7, [(29.4, -68.5), (29.4, -72.5), (68.8, -72.5), (68.8, -68.5)])  # lines 8-11
sketch7.addConstraint(Sketcher.Constraint("Vertical", 0))
sketch7.addConstraint(Sketcher.Constraint("Horizontal", 1))
sketch7.addConstraint(Sketcher.Constraint("Vertical", 2))
sketch7.addConstraint(Sketcher.Constraint("Horizontal", 3))
sketch7.addConstraint(Sketcher.Constraint("Vertical", 4))
sketch7.addConstraint(Sketcher.Constraint("Horizontal", 5))
sketch7.addConstraint(Sketcher.Constraint("Vertical", 6))
sketch7.addConstraint(Sketcher.Constraint("Horizontal", 7))
sketch7.addConstraint(Sketcher.Constraint("Vertical", 8))
sketch7.addConstraint(Sketcher.Constraint("Horizontal", 9))
sketch7.addConstraint(Sketcher.Constraint("Vertical", 10))
sketch7.addConstraint(Sketcher.Constraint("Horizontal", 11))
sketch7.addConstraint(Sketcher.Constraint("Vertical", 6, 2, 9, 2))
sketch7.addConstraint(Sketcher.Constraint("Equal", 6, 8))
sketch7.addConstraint(Sketcher.Constraint("DistanceX", 1, 1, 1, 2, Q("86 mm")))
sketch7.addConstraint(Sketcher.Constraint("DistanceY", 4, 2, 4, 1, Q("4 mm")))
sketch7.addConstraint(Sketcher.Constraint("DistanceX", 5, 1, 5, 2, Q("48.5 mm")))
sketch7.addConstraint(Sketcher.Constraint("DistanceY", 0, 2, 0, 1, Q("5.5 mm")))
sketch7.addConstraint(Sketcher.Constraint("DistanceX", 9, 1, 9, 2, Q("39.36 mm")))
sketch7.addConstraint(Sketcher.Constraint("DistanceX", -1, 1, 0, 2, Q("4.3 mm")))
sketch7.addConstraint(Sketcher.Constraint("DistanceY", 0, 2, -1, 1, Q("16.4 mm")))
sketch7.addConstraint(Sketcher.Constraint("DistanceY", 8, 2, -1, 1, Q("72.5 mm")))
sketch7.addConstraint(Sketcher.Constraint("DistanceX", -1, 1, 4, 2, Q("20.25 mm")))
sketch7.addConstraint(Sketcher.Constraint("DistanceY", 4, 2, -1, 1, Q("24.25 mm")))
pocket3 = body.newObject("PartDesign::Pocket", "Pocket002")
pocket3.Profile = sketch7
pocket3.Length = 3

# Sketch on XZ plane
sketch8 = body.newObject("Sketcher::SketchObject", "Sketch007")
sketch8.AttachmentSupport = (doc.getObject("XZ_Plane"), [""])
sketch8.MapMode = "FlatFace"
add_polygon(sketch8, [(10.5, -26.4), (10.5, -29.4), (21.3, -29.4), (21.3, -26.4)])  # lines 0-3
add_polygon(sketch8, [(29.3, -26.4), (29.3, -29.4), (42.8, -29.4), (42.8, -26.4)])  # lines 4-7
add_polygon(sketch8, [(50.6, -26.4), (50.6, -29.4), (64.1, -29.4), (64.1, -26.4)])  # lines 8-11
add_polygon(sketch8, [(71.9, -26.4), (71.9, -29.4), (85.4, -29.4), (85.4, -26.4)])  # lines 12-15
add_polygon(sketch8, [(10.5, -49), (10.5, -52), (21.3, -52), (21.3, -49)])  # lines 16-19
add_polygon(sketch8, [(32, -49), (32, -52), (42.8, -52), (42.8, -49)])  # lines 20-23
add_polygon(sketch8, [(50.6, -49), (50.6, -52), (64.1, -52), (64.1, -49)])  # lines 24-27
add_polygon(sketch8, [(71.9, -49), (71.9, -52), (85.4, -52), (85.4, -49)])  # lines 28-31
sketch8.addConstraint(Sketcher.Constraint("Vertical", 0))
sketch8.addConstraint(Sketcher.Constraint("Horizontal", 1))
sketch8.addConstraint(Sketcher.Constraint("Vertical", 2))
sketch8.addConstraint(Sketcher.Constraint("Horizontal", 3))
sketch8.addConstraint(Sketcher.Constraint("Vertical", 4))
sketch8.addConstraint(Sketcher.Constraint("Horizontal", 5))
sketch8.addConstraint(Sketcher.Constraint("Vertical", 6))
sketch8.addConstraint(Sketcher.Constraint("Horizontal", 7))
sketch8.addConstraint(Sketcher.Constraint("Vertical", 8))
sketch8.addConstraint(Sketcher.Constraint("Horizontal", 9))
sketch8.addConstraint(Sketcher.Constraint("Vertical", 10))
sketch8.addConstraint(Sketcher.Constraint("Horizontal", 11))
sketch8.addConstraint(Sketcher.Constraint("Vertical", 12))
sketch8.addConstraint(Sketcher.Constraint("Horizontal", 13))
sketch8.addConstraint(Sketcher.Constraint("Vertical", 14))
sketch8.addConstraint(Sketcher.Constraint("Horizontal", 15))
sketch8.addConstraint(Sketcher.Constraint("Vertical", 16))
sketch8.addConstraint(Sketcher.Constraint("Horizontal", 17))
sketch8.addConstraint(Sketcher.Constraint("Vertical", 18))
sketch8.addConstraint(Sketcher.Constraint("Horizontal", 19))
sketch8.addConstraint(Sketcher.Constraint("Vertical", 20))
sketch8.addConstraint(Sketcher.Constraint("Horizontal", 21))
sketch8.addConstraint(Sketcher.Constraint("Vertical", 22))
sketch8.addConstraint(Sketcher.Constraint("Horizontal", 23))
sketch8.addConstraint(Sketcher.Constraint("Vertical", 24))
sketch8.addConstraint(Sketcher.Constraint("Horizontal", 25))
sketch8.addConstraint(Sketcher.Constraint("Vertical", 26))
sketch8.addConstraint(Sketcher.Constraint("Horizontal", 27))
sketch8.addConstraint(Sketcher.Constraint("Vertical", 28))
sketch8.addConstraint(Sketcher.Constraint("Horizontal", 29))
sketch8.addConstraint(Sketcher.Constraint("Vertical", 30))
sketch8.addConstraint(Sketcher.Constraint("Horizontal", 31))
sketch8.addConstraint(Sketcher.Constraint("Horizontal", 1, 2, 4, 2))
sketch8.addConstraint(Sketcher.Constraint("Horizontal", 3, 2, 6, 2))
sketch8.addConstraint(Sketcher.Constraint("Horizontal", 5, 2, 8, 2))
sketch8.addConstraint(Sketcher.Constraint("Horizontal", 7, 2, 10, 2))
sketch8.addConstraint(Sketcher.Constraint("Horizontal", 9, 2, 12, 2))
sketch8.addConstraint(Sketcher.Constraint("Horizontal", 11, 2, 14, 2))
sketch8.addConstraint(Sketcher.Constraint("Horizontal", 17, 2, 20, 2))
sketch8.addConstraint(Sketcher.Constraint("Horizontal", 19, 2, 22, 2))
sketch8.addConstraint(Sketcher.Constraint("Horizontal", 21, 2, 24, 2))
sketch8.addConstraint(Sketcher.Constraint("Horizontal", 23, 2, 26, 2))
sketch8.addConstraint(Sketcher.Constraint("Horizontal", 25, 2, 28, 2))
sketch8.addConstraint(Sketcher.Constraint("Horizontal", 27, 2, 30, 2))
sketch8.addConstraint(Sketcher.Constraint("Vertical", 3, 2, 16, 2))
sketch8.addConstraint(Sketcher.Constraint("Vertical", 2, 2, 17, 2))
sketch8.addConstraint(Sketcher.Constraint("Vertical", 6, 2, 21, 2))
sketch8.addConstraint(Sketcher.Constraint("Vertical", 11, 2, 24, 2))
sketch8.addConstraint(Sketcher.Constraint("Vertical", 10, 2, 25, 2))
sketch8.addConstraint(Sketcher.Constraint("Vertical", 15, 2, 28, 2))
sketch8.addConstraint(Sketcher.Constraint("Vertical", 14, 2, 29, 2))
sketch8.addConstraint(Sketcher.Constraint("Equal", 7, 9))
sketch8.addConstraint(Sketcher.Constraint("Equal", 11, 13))
sketch8.addConstraint(Sketcher.Constraint("Equal", 19, 21))
sketch8.addConstraint(Sketcher.Constraint("Equal", 14, 16))
sketch8.addConstraint(Sketcher.Constraint("DistanceY", 0, 2, 0, 1, Q("3 mm")))
sketch8.addConstraint(Sketcher.Constraint("DistanceX", 1, 1, 1, 2, Q("10.8 mm")))
sketch8.addConstraint(Sketcher.Constraint("DistanceX", 5, 1, 5, 2, Q("13.5 mm")))
sketch8.addConstraint(Sketcher.Constraint("DistanceX", -1, 1, 20, 2, Q("32 mm")))
sketch8.addConstraint(Sketcher.Constraint("DistanceX", 1, 2, 4, 2, Q("8 mm")))
sketch8.addConstraint(Sketcher.Constraint("DistanceX", -1, 1, 8, 2, Q("50.6 mm")))
sketch8.addConstraint(Sketcher.Constraint("DistanceX", -1, 1, 12, 2, Q("71.9 mm")))
sketch8.addConstraint(Sketcher.Constraint("DistanceY", 16, 2, 0, 2, Q("22.7 mm")))
sketch8.addConstraint(Sketcher.Constraint("DistanceY", 0, 2, -1, 1, Q("29.35 mm")))
pocket4 = body.newObject("PartDesign::Pocket", "Pocket003")
pocket4.Profile = sketch8
pocket4.Length = 3

# Sketch on XZ plane
sketch9 = body.newObject("Sketcher::SketchObject", "Sketch008")
sketch9.AttachmentSupport = (doc.getObject("XZ_Plane"), [""])
sketch9.MapMode = "FlatFace"
sketch9.addGeometry(Part.Circle(V(8, -41.9, 0), V(0, 0, 1), 1.5), False)
sketch9.addGeometry(Part.Circle(V(21.1, -41.9, 0), V(0, 0, 1), 1.5), False)
sketch9.addGeometry(Part.Circle(V(29.5, -41.9, 0), V(0, 0, 1), 1.5), False)
sketch9.addGeometry(Part.Circle(V(42.6, -41.9, 0), V(0, 0, 1), 1.5), False)
sketch9.addGeometry(Part.Circle(V(50.8, -41.9, 0), V(0, 0, 1), 1.5), False)
sketch9.addGeometry(Part.Circle(V(63.9, -41.9, 0), V(0, 0, 1), 1.5), False)
sketch9.addGeometry(Part.Circle(V(72.1, -41.9, 0), V(0, 0, 1), 1.5), False)
sketch9.addGeometry(Part.Circle(V(85.2, -41.9, 0), V(0, 0, 1), 1.5), False)
sketch9.addGeometry(Part.Circle(V(85.2, -64.6, 0), V(0, 0, 1), 1.5), False)
sketch9.addGeometry(Part.Circle(V(72.1, -64.6, 0), V(0, 0, 1), 1.5), False)
sketch9.addGeometry(Part.Circle(V(63.9, -64.6, 0), V(0, 0, 1), 1.5), False)
sketch9.addGeometry(Part.Circle(V(50.8, -64.6, 0), V(0, 0, 1), 1.5), False)
sketch9.addGeometry(Part.Circle(V(42.6, -64.6, 0), V(0, 0, 1), 1.5), False)
sketch9.addGeometry(Part.Circle(V(29.5, -64.6, 0), V(0, 0, 1), 1.5), False)
sketch9.addGeometry(Part.Circle(V(21.1, -64.6, 0), V(0, 0, 1), 1.5), False)
sketch9.addGeometry(Part.Circle(V(8, -64.6, 0), V(0, 0, 1), 1.5), False)
sketch9.addConstraint(Sketcher.Constraint("Equal", 0, 1))
sketch9.addConstraint(Sketcher.Constraint("Equal", 1, 2))
sketch9.addConstraint(Sketcher.Constraint("Equal", 2, 3))
sketch9.addConstraint(Sketcher.Constraint("Equal", 3, 4))
sketch9.addConstraint(Sketcher.Constraint("Equal", 4, 5))
sketch9.addConstraint(Sketcher.Constraint("Equal", 5, 6))
sketch9.addConstraint(Sketcher.Constraint("Equal", 6, 7))
sketch9.addConstraint(Sketcher.Constraint("Equal", 7, 8))
sketch9.addConstraint(Sketcher.Constraint("Equal", 8, 9))
sketch9.addConstraint(Sketcher.Constraint("Equal", 9, 10))
sketch9.addConstraint(Sketcher.Constraint("Equal", 10, 11))
sketch9.addConstraint(Sketcher.Constraint("Equal", 11, 12))
sketch9.addConstraint(Sketcher.Constraint("Equal", 12, 13))
sketch9.addConstraint(Sketcher.Constraint("Equal", 13, 14))
sketch9.addConstraint(Sketcher.Constraint("Equal", 14, 15))
sketch9.addConstraint(Sketcher.Constraint("Horizontal", 0, 3, 1, 3))
sketch9.addConstraint(Sketcher.Constraint("Horizontal", 1, 3, 2, 3))
sketch9.addConstraint(Sketcher.Constraint("Horizontal", 2, 3, 3, 3))
sketch9.addConstraint(Sketcher.Constraint("Horizontal", 3, 3, 4, 3))
sketch9.addConstraint(Sketcher.Constraint("Horizontal", 4, 3, 5, 3))
sketch9.addConstraint(Sketcher.Constraint("Horizontal", 5, 3, 6, 3))
sketch9.addConstraint(Sketcher.Constraint("Horizontal", 6, 3, 7, 3))
sketch9.addConstraint(Sketcher.Constraint("Horizontal", 8, 3, 9, 3))
sketch9.addConstraint(Sketcher.Constraint("Horizontal", 9, 3, 10, 3))
sketch9.addConstraint(Sketcher.Constraint("Horizontal", 10, 3, 11, 3))
sketch9.addConstraint(Sketcher.Constraint("Horizontal", 11, 3, 12, 3))
sketch9.addConstraint(Sketcher.Constraint("Horizontal", 12, 3, 13, 3))
sketch9.addConstraint(Sketcher.Constraint("Horizontal", 13, 3, 14, 3))
sketch9.addConstraint(Sketcher.Constraint("Horizontal", 14, 3, 15, 3))
sketch9.addConstraint(Sketcher.Constraint("Vertical", 7, 3, 8, 3))
sketch9.addConstraint(Sketcher.Constraint("Vertical", 6, 3, 9, 3))
sketch9.addConstraint(Sketcher.Constraint("Vertical", 5, 3, 10, 3))
sketch9.addConstraint(Sketcher.Constraint("Vertical", 4, 3, 11, 3))
sketch9.addConstraint(Sketcher.Constraint("Vertical", 3, 3, 12, 3))
sketch9.addConstraint(Sketcher.Constraint("Vertical", 2, 3, 13, 3))
sketch9.addConstraint(Sketcher.Constraint("Vertical", 1, 3, 14, 3))
sketch9.addConstraint(Sketcher.Constraint("Vertical", 0, 3, 15, 3))
sketch9.addConstraint(Sketcher.Constraint("Diameter", 0, Q("3 mm")))
sketch9.addConstraint(Sketcher.Constraint("DistanceX", -1, 1, 0, 3, Q("8 mm")))
sketch9.addConstraint(Sketcher.Constraint("DistanceX", 1, 3, 6, 3, Q("51 mm")))
sketch9.addConstraint(Sketcher.Constraint("DistanceY", 0, 3, -1, 1, Q("41.9 mm")))
sketch9.addConstraint(Sketcher.Constraint("DistanceX", -1, 1, 1, 3, Q("21.1 mm")))
sketch9.addConstraint(Sketcher.Constraint("DistanceX", -1, 1, 2, 3, Q("29.5 mm")))
sketch9.addConstraint(Sketcher.Constraint("DistanceX", -1, 1, 3, 3, Q("42.6 mm")))
sketch9.addConstraint(Sketcher.Constraint("DistanceX", -1, 1, 4, 3, Q("50.8 mm")))
sketch9.addConstraint(Sketcher.Constraint("DistanceX", -1, 1, 5, 3, Q("63.9 mm")))
sketch9.addConstraint(Sketcher.Constraint("DistanceX", -1, 1, 7, 3, Q("85.2 mm")))
sketch9.addConstraint(Sketcher.Constraint("DistanceY", 8, 3, -1, 1, Q("64.6 mm")))
pocket5 = body.newObject("PartDesign::Pocket", "Pocket004")
pocket5.Profile = sketch9
pocket5.Length = 3

doc.recompute()
